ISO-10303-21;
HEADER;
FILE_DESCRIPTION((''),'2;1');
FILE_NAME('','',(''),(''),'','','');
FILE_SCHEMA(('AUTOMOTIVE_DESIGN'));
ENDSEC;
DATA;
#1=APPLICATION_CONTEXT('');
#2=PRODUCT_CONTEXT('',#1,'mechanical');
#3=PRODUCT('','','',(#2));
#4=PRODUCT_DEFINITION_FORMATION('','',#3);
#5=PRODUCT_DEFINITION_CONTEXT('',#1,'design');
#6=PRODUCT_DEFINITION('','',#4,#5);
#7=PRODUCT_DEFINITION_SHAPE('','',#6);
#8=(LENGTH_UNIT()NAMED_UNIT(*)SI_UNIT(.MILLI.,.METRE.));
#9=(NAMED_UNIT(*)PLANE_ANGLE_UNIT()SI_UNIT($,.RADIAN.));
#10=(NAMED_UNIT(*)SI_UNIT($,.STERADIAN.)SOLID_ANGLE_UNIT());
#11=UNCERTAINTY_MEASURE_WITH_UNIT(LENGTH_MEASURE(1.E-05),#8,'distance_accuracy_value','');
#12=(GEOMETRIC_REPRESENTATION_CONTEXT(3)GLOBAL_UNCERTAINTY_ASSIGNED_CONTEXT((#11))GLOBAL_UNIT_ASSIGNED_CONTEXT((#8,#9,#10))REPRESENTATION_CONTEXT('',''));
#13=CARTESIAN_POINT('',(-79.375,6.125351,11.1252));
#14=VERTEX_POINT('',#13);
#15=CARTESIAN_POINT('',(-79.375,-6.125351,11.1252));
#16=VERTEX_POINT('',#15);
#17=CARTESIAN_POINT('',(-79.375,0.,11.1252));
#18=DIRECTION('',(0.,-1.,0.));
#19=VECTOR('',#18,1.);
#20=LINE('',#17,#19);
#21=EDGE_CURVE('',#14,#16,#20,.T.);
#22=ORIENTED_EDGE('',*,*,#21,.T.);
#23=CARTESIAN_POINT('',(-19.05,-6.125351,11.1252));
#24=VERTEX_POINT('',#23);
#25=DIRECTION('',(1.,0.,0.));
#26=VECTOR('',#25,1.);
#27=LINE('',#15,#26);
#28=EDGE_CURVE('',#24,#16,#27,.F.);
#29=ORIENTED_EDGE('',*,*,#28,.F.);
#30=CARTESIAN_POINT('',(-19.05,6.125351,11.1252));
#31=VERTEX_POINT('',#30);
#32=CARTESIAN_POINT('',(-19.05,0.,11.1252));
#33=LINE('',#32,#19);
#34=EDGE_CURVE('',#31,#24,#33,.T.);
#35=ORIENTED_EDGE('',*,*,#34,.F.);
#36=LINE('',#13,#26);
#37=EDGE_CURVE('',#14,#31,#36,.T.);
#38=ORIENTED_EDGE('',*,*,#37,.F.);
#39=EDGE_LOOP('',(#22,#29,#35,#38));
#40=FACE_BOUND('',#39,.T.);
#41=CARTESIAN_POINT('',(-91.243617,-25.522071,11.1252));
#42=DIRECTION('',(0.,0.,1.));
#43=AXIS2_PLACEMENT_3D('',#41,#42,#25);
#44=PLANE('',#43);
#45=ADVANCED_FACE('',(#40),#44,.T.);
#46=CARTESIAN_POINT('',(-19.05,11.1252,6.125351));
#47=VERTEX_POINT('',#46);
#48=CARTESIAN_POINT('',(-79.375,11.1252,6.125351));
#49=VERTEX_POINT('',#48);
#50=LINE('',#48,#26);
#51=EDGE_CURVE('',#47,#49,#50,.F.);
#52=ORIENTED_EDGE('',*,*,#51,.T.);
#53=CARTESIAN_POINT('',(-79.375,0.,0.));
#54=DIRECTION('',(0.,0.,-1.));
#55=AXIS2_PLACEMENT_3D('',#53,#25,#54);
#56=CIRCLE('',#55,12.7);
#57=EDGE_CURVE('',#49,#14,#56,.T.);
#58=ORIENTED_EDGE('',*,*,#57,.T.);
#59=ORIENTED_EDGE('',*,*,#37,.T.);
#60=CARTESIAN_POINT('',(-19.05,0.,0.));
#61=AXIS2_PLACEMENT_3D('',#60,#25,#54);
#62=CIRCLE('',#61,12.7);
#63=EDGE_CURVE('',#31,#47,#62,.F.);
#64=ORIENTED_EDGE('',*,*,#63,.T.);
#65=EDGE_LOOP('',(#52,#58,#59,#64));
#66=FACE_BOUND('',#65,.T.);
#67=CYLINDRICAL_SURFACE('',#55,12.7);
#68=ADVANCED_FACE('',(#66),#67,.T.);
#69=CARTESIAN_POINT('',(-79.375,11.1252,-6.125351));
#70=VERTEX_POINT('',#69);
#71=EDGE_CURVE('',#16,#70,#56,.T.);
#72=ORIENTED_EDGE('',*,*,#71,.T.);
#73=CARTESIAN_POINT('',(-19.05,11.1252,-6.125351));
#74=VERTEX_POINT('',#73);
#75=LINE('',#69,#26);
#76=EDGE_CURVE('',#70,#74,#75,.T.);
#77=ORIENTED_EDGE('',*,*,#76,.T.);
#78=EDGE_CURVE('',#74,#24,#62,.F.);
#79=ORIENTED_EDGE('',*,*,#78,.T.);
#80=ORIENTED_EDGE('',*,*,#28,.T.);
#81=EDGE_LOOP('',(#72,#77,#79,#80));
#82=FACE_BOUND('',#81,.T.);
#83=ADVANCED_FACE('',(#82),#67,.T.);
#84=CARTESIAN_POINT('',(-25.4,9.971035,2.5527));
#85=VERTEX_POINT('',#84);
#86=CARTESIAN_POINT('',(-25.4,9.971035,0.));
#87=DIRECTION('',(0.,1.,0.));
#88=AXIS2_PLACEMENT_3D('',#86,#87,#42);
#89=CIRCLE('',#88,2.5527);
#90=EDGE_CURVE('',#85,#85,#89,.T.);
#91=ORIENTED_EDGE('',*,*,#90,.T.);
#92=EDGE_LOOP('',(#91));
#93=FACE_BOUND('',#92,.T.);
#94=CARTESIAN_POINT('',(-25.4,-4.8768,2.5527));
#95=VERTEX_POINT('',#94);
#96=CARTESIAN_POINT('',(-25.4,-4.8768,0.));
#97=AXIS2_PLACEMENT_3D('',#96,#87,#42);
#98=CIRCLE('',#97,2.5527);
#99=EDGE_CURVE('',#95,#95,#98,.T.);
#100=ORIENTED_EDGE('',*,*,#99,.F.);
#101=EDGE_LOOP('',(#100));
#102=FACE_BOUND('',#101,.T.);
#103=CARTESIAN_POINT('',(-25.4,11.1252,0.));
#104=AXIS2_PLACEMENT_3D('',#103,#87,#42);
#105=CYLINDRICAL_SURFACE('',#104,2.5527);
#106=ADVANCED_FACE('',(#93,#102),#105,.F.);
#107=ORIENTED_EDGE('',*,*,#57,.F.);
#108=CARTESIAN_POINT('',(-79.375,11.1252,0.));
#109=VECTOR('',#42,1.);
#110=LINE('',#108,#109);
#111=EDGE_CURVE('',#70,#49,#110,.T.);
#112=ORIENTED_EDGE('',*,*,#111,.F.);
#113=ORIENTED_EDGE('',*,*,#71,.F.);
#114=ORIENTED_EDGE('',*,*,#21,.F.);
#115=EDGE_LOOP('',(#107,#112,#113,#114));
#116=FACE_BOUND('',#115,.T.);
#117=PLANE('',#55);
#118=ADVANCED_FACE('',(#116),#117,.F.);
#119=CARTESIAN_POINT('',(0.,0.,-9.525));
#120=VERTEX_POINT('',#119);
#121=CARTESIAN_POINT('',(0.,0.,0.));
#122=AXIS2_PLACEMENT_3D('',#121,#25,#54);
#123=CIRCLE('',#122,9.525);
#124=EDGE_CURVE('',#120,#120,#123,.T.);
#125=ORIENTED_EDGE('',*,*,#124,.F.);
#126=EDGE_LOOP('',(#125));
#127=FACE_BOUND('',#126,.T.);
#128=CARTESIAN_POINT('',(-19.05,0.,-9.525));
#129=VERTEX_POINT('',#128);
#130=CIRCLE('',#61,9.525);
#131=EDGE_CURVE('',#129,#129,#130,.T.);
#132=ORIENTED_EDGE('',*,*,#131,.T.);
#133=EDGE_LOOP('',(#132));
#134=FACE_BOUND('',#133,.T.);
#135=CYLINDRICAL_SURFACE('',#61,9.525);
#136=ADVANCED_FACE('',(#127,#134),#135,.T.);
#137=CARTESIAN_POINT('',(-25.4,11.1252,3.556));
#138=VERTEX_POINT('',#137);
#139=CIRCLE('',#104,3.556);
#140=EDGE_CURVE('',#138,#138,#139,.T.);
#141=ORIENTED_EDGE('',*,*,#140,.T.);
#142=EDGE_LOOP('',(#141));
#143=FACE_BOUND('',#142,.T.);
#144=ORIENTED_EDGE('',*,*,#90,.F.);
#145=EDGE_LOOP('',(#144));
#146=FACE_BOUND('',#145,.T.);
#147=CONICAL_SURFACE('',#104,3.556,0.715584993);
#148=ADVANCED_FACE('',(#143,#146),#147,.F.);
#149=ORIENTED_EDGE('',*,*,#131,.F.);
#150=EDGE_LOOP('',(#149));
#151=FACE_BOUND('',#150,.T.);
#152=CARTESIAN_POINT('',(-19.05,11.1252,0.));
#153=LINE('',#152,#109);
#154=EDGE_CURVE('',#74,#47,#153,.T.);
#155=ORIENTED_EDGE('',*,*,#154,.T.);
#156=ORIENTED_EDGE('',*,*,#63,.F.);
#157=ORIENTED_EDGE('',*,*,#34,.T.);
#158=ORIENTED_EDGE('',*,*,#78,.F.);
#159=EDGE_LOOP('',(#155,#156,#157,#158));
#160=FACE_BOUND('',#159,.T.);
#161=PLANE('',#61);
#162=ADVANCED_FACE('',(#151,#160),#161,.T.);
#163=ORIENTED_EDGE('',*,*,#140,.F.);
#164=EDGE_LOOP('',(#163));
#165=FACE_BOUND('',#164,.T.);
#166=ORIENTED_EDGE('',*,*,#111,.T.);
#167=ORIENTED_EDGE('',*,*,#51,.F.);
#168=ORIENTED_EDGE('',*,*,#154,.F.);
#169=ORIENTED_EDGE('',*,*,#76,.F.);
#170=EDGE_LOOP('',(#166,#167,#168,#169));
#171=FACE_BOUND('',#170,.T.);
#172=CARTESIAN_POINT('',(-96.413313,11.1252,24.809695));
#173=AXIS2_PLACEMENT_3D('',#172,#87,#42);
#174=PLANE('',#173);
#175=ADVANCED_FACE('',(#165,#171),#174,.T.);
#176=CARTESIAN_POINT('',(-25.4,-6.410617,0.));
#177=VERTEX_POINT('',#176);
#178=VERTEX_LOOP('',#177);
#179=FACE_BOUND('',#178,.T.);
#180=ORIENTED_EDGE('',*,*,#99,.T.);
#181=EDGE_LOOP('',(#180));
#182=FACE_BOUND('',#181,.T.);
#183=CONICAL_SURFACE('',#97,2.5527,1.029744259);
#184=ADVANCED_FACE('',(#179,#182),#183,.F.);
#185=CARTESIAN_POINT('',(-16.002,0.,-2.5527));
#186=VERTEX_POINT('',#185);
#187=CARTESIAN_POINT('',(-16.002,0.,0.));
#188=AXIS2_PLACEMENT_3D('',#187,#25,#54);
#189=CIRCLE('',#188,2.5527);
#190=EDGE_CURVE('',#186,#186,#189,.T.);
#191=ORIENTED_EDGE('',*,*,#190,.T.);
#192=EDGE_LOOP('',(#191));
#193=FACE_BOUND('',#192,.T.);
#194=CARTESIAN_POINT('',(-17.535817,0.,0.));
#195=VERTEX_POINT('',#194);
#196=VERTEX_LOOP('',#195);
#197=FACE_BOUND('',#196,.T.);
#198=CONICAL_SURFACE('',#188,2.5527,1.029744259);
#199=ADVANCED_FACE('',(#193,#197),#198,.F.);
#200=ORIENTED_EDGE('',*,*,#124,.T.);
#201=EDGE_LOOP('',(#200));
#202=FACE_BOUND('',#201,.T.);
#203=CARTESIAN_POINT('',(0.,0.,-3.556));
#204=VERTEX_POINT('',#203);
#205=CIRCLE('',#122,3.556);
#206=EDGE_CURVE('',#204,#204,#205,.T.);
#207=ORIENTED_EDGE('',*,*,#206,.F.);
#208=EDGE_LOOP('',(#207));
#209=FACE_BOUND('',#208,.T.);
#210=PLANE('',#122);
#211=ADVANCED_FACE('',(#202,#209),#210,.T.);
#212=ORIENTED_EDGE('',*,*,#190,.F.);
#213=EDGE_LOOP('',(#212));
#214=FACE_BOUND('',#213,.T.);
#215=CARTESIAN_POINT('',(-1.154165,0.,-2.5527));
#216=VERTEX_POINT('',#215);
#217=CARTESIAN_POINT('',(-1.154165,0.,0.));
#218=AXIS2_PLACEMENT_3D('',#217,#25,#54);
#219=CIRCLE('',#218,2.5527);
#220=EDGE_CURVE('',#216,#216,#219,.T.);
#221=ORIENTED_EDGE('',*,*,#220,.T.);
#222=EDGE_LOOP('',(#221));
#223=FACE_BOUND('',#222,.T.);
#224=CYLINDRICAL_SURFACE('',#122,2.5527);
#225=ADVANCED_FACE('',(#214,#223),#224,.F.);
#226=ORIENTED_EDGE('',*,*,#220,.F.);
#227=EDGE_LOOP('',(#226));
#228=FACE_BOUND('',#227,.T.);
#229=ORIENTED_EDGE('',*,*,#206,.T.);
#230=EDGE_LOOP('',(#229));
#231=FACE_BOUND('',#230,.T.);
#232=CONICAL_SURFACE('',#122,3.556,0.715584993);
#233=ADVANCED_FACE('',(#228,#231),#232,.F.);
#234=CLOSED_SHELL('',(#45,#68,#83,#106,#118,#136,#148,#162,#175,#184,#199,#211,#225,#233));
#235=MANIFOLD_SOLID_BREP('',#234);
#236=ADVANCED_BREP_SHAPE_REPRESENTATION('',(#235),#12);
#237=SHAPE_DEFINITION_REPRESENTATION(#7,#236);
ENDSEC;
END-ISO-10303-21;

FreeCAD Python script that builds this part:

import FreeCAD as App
import Part
import Sketcher
from FreeCAD import Vector
Q = App.Units.Quantity

doc = App.newDocument("Part")
body = doc.addObject("PartDesign::Body", "Body")

# Sketch on YZ plane
sketch1 = doc.addObject("Sketcher::SketchObject", "Sketch")
body.addObject(sketch1)
sketch1.AttachmentSupport = (doc.YZ_Plane, [""])
sketch1.MapMode = "FlatFace"
sketch1.addGeometry(Part.Circle(Vector(0, 0, 0), Vector(0, 0, 1), 13), False)
sketch1.addConstraint(Sketcher.Constraint("Coincident", 0, 3, -1, 1))
sketch1.addConstraint(Sketcher.Constraint("Diameter", 0, Q("1 in")))
pad1 = doc.addObject("PartDesign::Pad", "Pad")
body.addObject(pad1)
pad1.Profile = sketch1
pad1.Length = Q("3.125 in")
pad1.Reversed = True

# Sketch on YZ plane
sketch2 = doc.addObject("Sketcher::SketchObject", "Sketch001")
body.addObject(sketch2)
sketch2.AttachmentSupport = (doc.YZ_Plane, [""])
sketch2.MapMode = "FlatFace"
sketch2.addGeometry(Part.Circle(Vector(0, 0, 0), Vector(0, 0, 1), 21), False)
sketch2.addGeometry(Part.Circle(Vector(0, 0, 0), Vector(0, 0, 1), 10), False)
sketch2.addConstraint(Sketcher.Constraint("Coincident", 0, 3, -1, 1))
sketch2.addConstraint(Sketcher.Constraint("Coincident", 1, 3, -1, 1))
sketch2.addConstraint(Sketcher.Constraint("Diameter", 1, Q("0.75 in")))
sketch2.addConstraint(Sketcher.Constraint("Diameter", 0, Q("42.586843 mm")))
pocket1 = doc.addObject("PartDesign::Pocket", "Pocket")
body.addObject(pocket1)
pocket1.Profile = sketch2
pocket1.Length = Q("0.75 in")

# Sketch on XY plane
sketch3 = doc.addObject("Sketcher::SketchObject", "Sketch002")
body.addObject(sketch3)
sketch3.AttachmentSupport = (doc.XY_Plane, [""])
sketch3.MapMode = "FlatFace"
sketch3.AttachmentOffset = App.Placement(Vector(0, 0, 0.438 * 25.4), App.Rotation())
sketch3.addGeometry(Part.LineSegment(Vector(-91, 37, 0), Vector(-91, -26, 0)), False)
sketch3.addGeometry(Part.LineSegment(Vector(-91, -26, 0), Vector(-3, -26, 0)), False)
sketch3.addGeometry(Part.LineSegment(Vector(-3, -26, 0), Vector(-3, 37, 0)), False)
sketch3.addGeometry(Part.LineSegment(Vector(-3, 37, 0), Vector(-91, 37, 0)), False)
sketch3.addConstraint(Sketcher.Constraint("Coincident", 0, 2, 1, 1))
sketch3.addConstraint(Sketcher.Constraint("Coincident", 1, 2, 2, 1))
sketch3.addConstraint(Sketcher.Constraint("Coincident", 2, 2, 3, 1))
sketch3.addConstraint(Sketcher.Constraint("Coincident", 3, 2, 0, 1))
sketch3.addConstraint(Sketcher.Constraint("Vertical", 0))
sketch3.addConstraint(Sketcher.Constraint("Horizontal", 1))
sketch3.addConstraint(Sketcher.Constraint("Vertical", 2))
sketch3.addConstraint(Sketcher.Constraint("Horizontal", 3))
sketch3.addConstraint(Sketcher.Constraint("DistanceX", 1, 1, 1, 2, Q("88.347661 mm")))
sketch3.addConstraint(Sketcher.Constraint("DistanceY", 0, 2, 0, 1, Q("62.084651 mm")))
sketch3.addConstraint(Sketcher.Constraint("DistanceY", 0, 2, -1, 1, Q("25.522071 mm")))
sketch3.addConstraint(Sketcher.Constraint("DistanceX", 0, 2, -1, 1, Q("91.243617 mm")))
pocket2 = doc.addObject("PartDesign::Pocket", "Pocket001")
body.addObject(pocket2)
pocket2.Profile = sketch3
pocket2.Length = Q("0.3 in")
pocket2.Reversed = True

# Sketch on XZ plane
sketch4 = doc.addObject("Sketcher::SketchObject", "Sketch003")
body.addObject(sketch4)
sketch4.AttachmentSupport = (doc.XZ_Plane, [""])
sketch4.MapMode = "FlatFace"
sketch4.AttachmentOffset = App.Placement(Vector(0, 0, -0.438 * 25.4), App.Rotation())
sketch4.addGeometry(Part.LineSegment(Vector(22, 25, 0), Vector(22, -27, 0)), False)
sketch4.addGeometry(Part.LineSegment(Vector(22, -27, 0), Vector(-96, -27, 0)), False)
sketch4.addGeometry(Part.LineSegment(Vector(-96, -27, 0), Vector(-96, 25, 0)), False)
sketch4.addGeometry(Part.LineSegment(Vector(-96, 25, 0), Vector(22, 25, 0)), False)
sketch4.addConstraint(Sketcher.Constraint("Coincident", 0, 2, 1, 1))
sketch4.addConstraint(Sketcher.Constraint("Coincident", 1, 2, 2, 1))
sketch4.addConstraint(Sketcher.Constraint("Coincident", 2, 2, 3, 1))
sketch4.addConstraint(Sketcher.Constraint("Coincident", 3, 2, 0, 1))
sketch4.addConstraint(Sketcher.Constraint("Vertical", 0))
sketch4.addConstraint(Sketcher.Constraint("Horizontal", 1))
sketch4.addConstraint(Sketcher.Constraint("Vertical", 2))
sketch4.addConstraint(Sketcher.Constraint("Horizontal", 3))
sketch4.addConstraint(Sketcher.Constraint("DistanceX", 1, 2, 1, 1, Q("118.824829 mm")))
sketch4.addConstraint(Sketcher.Constraint("DistanceY", 0, 2, 0, 1, Q("51.847981 mm")))
sketch4.addConstraint(Sketcher.Constraint("DistanceX", -1, 1, 0, 2, Q("22.411515 mm")))
sketch4.addConstraint(Sketcher.Constraint("DistanceY", 0, 2, -1, 1, Q("27.038286 mm")))
pocket3 = doc.addObject("PartDesign::Pocket", "Pocket002")
body.addObject(pocket3)
pocket3.Profile = sketch4
pocket3.Length = Q("1 in")

# Sketch on XZ plane
sketch5 = doc.addObject("Sketcher::SketchObject", "Sketch004")
body.addObject(sketch5)
sketch5.AttachmentSupport = (doc.XZ_Plane, [""])
sketch5.MapMode = "FlatFace"
sketch5.AttachmentOffset = App.Placement(Vector(0, 0, -0.438 * 25.4), App.Rotation())
sketch5.addGeometry(Part.Circle(Vector(-25.4, 0, 0), Vector(0, 0, 1), 2.6), False)
sketch5.addConstraint(Sketcher.Constraint("PointOnObject", 0, 3, -1))
sketch5.addConstraint(Sketcher.Constraint("Diameter", 0, Q("0.201 in")))
sketch5.addConstraint(Sketcher.Constraint("DistanceX", 0, 3, -1, 1, Q("1 in")))
doc.recompute()
hole = doc.addObject("PartDesign::Hole", "Hole")
body.addObject(hole)
hole.Profile = sketch5
hole.ThreadType = "None"
hole.Diameter = Q("0.201 in")
hole.DepthType = "Dimension"
hole.Depth = Q("0.63 in")
hole.DrillPoint = "Angled"
hole.DrillPointAngle = 118
hole.HoleCutType = "Countersink"
hole.HoleCutDiameter = Q("0.28 in")
hole.HoleCutCountersinkAngle = 82
hole.Reversed = True

# Sketch on YZ plane
sketch6 = doc.addObject("Sketcher::SketchObject", "Sketch005")
body.addObject(sketch6)
sketch6.AttachmentSupport = (doc.YZ_Plane, [""])
sketch6.MapMode = "FlatFace"
sketch6.addGeometry(Part.Circle(Vector(0, 0, 0), Vector(0, 0, 1), 2.6), False)
sketch6.addConstraint(Sketcher.Constraint("Coincident", 0, 3, -1, 1))
sketch6.addConstraint(Sketcher.Constraint("Diameter", 0, Q("0.201 in")))
doc.recompute()
hole2 = doc.addObject("PartDesign::Hole", "Hole001")
body.addObject(hole2)
hole2.Profile = sketch6
hole2.ThreadType = "None"
hole2.Diameter = Q("0.201 in")
hole2.DepthType = "Dimension"
hole2.Depth = Q("0.63 in")
hole2.DrillPoint = "Angled"
hole2.DrillPointAngle = 118
hole2.HoleCutType = "Countersink"
hole2.HoleCutDiameter = Q("0.28 in")
hole2.HoleCutCountersinkAngle = 82

doc.recompute()
